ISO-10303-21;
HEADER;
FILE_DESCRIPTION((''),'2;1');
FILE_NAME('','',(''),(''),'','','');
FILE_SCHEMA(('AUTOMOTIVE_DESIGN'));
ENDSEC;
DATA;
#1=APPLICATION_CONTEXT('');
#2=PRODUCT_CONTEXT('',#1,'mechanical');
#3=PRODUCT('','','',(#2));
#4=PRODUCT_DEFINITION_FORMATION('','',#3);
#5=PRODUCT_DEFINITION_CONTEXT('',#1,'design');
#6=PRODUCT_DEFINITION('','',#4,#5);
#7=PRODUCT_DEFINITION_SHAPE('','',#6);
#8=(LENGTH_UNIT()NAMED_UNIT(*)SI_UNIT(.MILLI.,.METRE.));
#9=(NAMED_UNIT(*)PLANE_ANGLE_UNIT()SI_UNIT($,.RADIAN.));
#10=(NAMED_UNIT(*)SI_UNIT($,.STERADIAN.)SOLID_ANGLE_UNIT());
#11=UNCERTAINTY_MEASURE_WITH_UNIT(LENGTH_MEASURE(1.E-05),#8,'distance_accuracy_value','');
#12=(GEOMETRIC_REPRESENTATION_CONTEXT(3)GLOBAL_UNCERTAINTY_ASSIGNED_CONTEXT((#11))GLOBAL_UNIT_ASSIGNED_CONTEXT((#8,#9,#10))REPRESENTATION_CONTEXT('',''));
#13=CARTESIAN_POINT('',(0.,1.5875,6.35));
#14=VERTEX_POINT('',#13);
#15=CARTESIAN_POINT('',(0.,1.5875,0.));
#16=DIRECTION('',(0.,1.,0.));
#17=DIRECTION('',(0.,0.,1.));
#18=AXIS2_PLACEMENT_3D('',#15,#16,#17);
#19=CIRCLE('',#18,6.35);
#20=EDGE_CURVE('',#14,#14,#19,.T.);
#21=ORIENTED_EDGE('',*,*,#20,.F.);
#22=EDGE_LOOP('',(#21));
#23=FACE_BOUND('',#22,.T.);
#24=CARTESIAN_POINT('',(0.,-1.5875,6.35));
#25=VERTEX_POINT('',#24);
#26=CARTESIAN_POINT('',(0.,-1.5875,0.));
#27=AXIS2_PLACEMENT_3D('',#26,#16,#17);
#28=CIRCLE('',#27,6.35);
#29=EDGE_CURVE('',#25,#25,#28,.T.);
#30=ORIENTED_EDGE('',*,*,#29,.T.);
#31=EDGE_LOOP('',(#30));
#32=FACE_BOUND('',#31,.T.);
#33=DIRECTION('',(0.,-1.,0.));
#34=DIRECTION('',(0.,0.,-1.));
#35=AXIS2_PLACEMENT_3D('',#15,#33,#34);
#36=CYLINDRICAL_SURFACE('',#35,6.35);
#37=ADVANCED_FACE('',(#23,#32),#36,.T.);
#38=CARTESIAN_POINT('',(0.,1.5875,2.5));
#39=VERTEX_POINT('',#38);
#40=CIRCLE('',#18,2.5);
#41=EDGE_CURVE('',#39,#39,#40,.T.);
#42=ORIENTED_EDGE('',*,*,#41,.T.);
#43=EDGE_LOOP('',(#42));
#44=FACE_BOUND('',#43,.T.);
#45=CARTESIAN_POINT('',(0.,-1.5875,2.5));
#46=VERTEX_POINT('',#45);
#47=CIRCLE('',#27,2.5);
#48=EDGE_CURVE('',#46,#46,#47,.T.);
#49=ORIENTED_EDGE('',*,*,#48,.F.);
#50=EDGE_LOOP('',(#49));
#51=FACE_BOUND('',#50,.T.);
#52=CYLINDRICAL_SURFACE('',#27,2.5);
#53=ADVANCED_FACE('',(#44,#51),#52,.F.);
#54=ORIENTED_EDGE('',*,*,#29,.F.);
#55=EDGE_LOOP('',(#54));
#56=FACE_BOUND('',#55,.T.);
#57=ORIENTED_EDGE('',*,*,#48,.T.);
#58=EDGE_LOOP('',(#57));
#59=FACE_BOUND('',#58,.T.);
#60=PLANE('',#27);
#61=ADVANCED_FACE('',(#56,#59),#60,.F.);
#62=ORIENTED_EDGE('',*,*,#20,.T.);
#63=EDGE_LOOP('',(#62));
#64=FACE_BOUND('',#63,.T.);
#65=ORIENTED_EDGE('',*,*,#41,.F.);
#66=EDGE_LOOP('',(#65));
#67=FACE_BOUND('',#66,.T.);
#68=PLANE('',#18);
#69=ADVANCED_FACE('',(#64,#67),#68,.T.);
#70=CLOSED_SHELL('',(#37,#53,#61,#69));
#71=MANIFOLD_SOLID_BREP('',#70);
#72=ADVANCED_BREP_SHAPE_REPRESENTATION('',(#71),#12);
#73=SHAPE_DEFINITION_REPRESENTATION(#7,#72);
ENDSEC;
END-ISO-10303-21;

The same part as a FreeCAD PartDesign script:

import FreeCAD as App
import Part
import Sketcher
from FreeCAD import Vector
Q = App.Units.Quantity

doc = App.newDocument("Part")
body = doc.addObject("PartDesign::Body", "Body")

# Sketch on XZ plane
sketch1 = body.newObject("Sketcher::SketchObject", "Sketch")
sketch1.AttachmentSupport = (doc.getObject("XZ_Plane"), [""])
sketch1.MapMode = "FlatFace"
sketch1.addGeometry(Part.Circle(Vector(0, 0, 0), Vector(0, 0, 1), 6), False)
sketch1.addConstraint([
    Sketcher.Constraint("Coincident", 0, 3, -1, 1),
    Sketcher.Constraint("Diameter", 0, Q("0.5 in")),
])
pad1 = body.newObject("PartDesign::Pad", "Pad")
pad1.Profile = sketch1
pad1.Length = Q("0.125 in")
pad1.Midplane = True

# Sketch on XZ plane
sketch2 = body.newObject("Sketcher::SketchObject", "Sketch001")
sketch2.AttachmentSupport = (doc.getObject("XZ_Plane"), [""])
sketch2.MapMode = "FlatFace"
sketch2.AttachmentOffset = App.Placement(Vector(0, 0, -0.0625 * 25.4), App.Rotation())
sketch2.addGeometry(Part.Circle(Vector(0, 0, 0), Vector(0, 0, 1), 2.5), False)
sketch2.addConstraint([
    Sketcher.Constraint("Coincident", 0, 3, -1, 1),
    Sketcher.Constraint("Diameter", 0, Q("5 mm")),
])
pocket1 = body.newObject("PartDesign::Pocket", "Pocket")
pocket1.Profile = sketch2
pocket1.Type = "ThroughAll"
pocket1.Reversed = True

doc.recompute()
